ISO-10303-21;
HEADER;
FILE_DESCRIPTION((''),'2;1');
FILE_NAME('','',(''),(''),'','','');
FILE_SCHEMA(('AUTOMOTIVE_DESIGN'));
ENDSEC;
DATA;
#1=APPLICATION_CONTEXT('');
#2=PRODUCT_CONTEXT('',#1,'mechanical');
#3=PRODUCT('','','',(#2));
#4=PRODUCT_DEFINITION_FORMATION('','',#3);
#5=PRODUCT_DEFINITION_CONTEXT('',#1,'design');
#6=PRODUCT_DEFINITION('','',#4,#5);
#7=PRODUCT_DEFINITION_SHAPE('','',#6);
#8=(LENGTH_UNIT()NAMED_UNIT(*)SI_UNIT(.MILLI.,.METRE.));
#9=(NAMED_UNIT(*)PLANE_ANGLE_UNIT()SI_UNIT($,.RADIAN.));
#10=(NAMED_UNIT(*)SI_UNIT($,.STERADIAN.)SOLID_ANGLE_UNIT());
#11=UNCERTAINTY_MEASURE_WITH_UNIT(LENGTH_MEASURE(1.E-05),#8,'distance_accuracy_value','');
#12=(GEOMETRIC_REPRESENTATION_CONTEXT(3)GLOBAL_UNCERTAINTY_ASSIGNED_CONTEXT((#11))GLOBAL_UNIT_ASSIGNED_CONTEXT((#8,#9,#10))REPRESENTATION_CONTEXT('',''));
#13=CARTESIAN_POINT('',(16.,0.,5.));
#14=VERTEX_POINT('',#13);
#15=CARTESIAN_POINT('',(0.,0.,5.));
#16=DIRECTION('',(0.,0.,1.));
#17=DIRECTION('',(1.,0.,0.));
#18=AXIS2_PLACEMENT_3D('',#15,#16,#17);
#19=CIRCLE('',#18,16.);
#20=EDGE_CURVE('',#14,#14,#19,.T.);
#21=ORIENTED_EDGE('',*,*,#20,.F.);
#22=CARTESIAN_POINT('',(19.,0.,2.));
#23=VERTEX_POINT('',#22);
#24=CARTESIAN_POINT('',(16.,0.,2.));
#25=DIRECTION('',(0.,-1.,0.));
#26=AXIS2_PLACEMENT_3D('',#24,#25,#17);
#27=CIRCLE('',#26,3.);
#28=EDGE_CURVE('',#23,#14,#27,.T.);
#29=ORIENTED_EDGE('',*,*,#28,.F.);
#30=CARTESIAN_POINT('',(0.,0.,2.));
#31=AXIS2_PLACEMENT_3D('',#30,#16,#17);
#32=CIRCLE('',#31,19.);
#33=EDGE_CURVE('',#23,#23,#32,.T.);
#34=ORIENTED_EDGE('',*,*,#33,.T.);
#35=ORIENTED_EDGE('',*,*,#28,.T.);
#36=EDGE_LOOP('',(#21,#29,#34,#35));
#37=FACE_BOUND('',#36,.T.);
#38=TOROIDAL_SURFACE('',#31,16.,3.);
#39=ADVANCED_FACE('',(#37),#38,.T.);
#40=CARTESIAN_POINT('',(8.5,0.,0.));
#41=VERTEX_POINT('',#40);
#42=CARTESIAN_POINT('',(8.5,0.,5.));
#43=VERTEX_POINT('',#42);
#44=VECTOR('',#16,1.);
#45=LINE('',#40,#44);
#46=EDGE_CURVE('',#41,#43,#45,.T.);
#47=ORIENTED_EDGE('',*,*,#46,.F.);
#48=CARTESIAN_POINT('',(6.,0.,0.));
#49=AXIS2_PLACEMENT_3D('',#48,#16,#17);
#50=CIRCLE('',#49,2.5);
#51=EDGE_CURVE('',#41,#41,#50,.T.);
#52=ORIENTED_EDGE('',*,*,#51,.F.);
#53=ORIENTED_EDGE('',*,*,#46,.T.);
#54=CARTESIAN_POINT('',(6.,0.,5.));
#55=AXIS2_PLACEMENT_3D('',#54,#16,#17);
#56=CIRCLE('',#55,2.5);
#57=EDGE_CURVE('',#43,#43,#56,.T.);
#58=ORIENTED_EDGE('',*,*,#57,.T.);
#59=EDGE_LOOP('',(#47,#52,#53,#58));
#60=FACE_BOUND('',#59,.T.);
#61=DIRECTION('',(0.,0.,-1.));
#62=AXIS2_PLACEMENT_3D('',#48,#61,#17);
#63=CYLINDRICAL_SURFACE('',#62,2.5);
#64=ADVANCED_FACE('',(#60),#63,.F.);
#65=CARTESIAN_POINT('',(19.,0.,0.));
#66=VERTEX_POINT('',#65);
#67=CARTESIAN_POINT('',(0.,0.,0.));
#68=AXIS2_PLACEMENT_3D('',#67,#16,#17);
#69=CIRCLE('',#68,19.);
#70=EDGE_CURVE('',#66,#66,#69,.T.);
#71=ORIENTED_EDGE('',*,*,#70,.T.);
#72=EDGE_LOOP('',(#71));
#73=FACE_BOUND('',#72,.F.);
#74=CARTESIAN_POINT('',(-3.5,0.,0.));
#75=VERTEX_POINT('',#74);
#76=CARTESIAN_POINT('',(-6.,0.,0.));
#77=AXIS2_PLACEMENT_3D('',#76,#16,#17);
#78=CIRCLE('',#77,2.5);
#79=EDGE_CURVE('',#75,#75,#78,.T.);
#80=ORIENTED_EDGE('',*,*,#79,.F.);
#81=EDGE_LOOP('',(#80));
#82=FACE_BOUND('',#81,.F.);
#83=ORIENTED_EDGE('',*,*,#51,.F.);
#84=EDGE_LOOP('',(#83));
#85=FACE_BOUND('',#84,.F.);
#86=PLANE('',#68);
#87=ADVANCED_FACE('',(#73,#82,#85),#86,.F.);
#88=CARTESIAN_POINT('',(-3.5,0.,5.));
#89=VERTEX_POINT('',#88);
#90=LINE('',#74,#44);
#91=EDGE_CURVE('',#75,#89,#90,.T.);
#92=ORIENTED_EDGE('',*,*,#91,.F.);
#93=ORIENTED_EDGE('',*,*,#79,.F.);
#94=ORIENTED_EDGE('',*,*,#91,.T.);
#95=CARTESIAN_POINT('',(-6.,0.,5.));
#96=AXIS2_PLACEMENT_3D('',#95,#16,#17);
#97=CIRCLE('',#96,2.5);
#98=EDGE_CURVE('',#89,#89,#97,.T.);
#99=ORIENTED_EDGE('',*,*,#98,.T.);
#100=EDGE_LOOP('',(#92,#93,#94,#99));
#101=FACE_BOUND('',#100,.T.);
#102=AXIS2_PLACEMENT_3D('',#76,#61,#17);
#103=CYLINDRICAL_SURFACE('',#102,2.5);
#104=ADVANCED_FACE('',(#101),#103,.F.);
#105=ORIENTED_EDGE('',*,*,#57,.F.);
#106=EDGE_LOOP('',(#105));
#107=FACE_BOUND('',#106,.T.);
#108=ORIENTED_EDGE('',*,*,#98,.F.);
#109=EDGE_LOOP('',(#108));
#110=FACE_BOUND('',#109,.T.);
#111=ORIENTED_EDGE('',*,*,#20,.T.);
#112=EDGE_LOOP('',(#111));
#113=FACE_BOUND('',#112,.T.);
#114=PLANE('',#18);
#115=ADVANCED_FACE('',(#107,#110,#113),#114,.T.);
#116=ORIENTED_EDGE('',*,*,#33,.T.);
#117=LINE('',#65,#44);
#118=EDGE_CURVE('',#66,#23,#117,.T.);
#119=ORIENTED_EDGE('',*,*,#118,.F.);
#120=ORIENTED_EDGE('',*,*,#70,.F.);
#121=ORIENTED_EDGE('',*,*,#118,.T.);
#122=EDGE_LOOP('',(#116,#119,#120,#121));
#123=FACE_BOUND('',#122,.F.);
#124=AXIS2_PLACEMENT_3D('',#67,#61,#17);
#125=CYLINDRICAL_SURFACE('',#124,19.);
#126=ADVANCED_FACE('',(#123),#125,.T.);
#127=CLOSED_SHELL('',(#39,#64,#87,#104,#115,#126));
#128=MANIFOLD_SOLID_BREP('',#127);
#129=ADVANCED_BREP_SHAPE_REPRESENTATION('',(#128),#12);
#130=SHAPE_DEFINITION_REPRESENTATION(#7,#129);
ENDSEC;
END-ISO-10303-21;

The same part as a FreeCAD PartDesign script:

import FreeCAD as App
import Part
import Sketcher

V = App.Vector


def edges_at(feature, points):
    """Names of the edges that pass closest to the given points."""
    edges = feature.Shape.Edges
    near = lambda p: min(range(len(edges)), key=lambda i: edges[i].distToShape(Part.Vertex(*p))[0])
    return sorted({f"Edge{near(p) + 1}" for p in points})

doc = App.newDocument("Part")
body = doc.addObject("PartDesign::Body", "Body")

# Sketch on XY plane
sketch1 = body.newObject("Sketcher::SketchObject", "Sketch")
sketch1.AttachmentSupport = (doc.getObject("XY_Plane"), [""])
sketch1.MapMode = "FlatFace"
sketch1.addGeometry([
    Part.Circle(V(0, 0, 0), V(0, 0, 1), 19),
    Part.Circle(V(-6, 0, 0), V(0, 0, 1), 2.5),
    Part.Circle(V(6, 0, 0), V(0, 0, 1), 2.5),
], False)
sketch1.addConstraint([
    Sketcher.Constraint("Coincident", 0, 3, -1, 1),
    Sketcher.Constraint("Equal", 1, 2),
    Sketcher.Constraint("Symmetric", 1, 3, 2, 3, -1, 1),
    Sketcher.Constraint("PointOnObject", 1, 3, -1),
    Sketcher.Constraint("Diameter", 0, 38.0),
    Sketcher.Constraint("Diameter", 1, 5.0),
    Sketcher.Constraint("DistanceX", 1, 3, -1, 1, 6.0),
])
pad1 = body.newObject("PartDesign::Pad", "Pad")
pad1.Profile = sketch1
pad1.Length = 5
doc.recompute()

fillet = body.newObject("PartDesign::Fillet", "Fillet")
fillet.Base = (pad1, edges_at(pad1, [(-19, 0, 5)]))
fillet.Radius = 3

doc.recompute()
